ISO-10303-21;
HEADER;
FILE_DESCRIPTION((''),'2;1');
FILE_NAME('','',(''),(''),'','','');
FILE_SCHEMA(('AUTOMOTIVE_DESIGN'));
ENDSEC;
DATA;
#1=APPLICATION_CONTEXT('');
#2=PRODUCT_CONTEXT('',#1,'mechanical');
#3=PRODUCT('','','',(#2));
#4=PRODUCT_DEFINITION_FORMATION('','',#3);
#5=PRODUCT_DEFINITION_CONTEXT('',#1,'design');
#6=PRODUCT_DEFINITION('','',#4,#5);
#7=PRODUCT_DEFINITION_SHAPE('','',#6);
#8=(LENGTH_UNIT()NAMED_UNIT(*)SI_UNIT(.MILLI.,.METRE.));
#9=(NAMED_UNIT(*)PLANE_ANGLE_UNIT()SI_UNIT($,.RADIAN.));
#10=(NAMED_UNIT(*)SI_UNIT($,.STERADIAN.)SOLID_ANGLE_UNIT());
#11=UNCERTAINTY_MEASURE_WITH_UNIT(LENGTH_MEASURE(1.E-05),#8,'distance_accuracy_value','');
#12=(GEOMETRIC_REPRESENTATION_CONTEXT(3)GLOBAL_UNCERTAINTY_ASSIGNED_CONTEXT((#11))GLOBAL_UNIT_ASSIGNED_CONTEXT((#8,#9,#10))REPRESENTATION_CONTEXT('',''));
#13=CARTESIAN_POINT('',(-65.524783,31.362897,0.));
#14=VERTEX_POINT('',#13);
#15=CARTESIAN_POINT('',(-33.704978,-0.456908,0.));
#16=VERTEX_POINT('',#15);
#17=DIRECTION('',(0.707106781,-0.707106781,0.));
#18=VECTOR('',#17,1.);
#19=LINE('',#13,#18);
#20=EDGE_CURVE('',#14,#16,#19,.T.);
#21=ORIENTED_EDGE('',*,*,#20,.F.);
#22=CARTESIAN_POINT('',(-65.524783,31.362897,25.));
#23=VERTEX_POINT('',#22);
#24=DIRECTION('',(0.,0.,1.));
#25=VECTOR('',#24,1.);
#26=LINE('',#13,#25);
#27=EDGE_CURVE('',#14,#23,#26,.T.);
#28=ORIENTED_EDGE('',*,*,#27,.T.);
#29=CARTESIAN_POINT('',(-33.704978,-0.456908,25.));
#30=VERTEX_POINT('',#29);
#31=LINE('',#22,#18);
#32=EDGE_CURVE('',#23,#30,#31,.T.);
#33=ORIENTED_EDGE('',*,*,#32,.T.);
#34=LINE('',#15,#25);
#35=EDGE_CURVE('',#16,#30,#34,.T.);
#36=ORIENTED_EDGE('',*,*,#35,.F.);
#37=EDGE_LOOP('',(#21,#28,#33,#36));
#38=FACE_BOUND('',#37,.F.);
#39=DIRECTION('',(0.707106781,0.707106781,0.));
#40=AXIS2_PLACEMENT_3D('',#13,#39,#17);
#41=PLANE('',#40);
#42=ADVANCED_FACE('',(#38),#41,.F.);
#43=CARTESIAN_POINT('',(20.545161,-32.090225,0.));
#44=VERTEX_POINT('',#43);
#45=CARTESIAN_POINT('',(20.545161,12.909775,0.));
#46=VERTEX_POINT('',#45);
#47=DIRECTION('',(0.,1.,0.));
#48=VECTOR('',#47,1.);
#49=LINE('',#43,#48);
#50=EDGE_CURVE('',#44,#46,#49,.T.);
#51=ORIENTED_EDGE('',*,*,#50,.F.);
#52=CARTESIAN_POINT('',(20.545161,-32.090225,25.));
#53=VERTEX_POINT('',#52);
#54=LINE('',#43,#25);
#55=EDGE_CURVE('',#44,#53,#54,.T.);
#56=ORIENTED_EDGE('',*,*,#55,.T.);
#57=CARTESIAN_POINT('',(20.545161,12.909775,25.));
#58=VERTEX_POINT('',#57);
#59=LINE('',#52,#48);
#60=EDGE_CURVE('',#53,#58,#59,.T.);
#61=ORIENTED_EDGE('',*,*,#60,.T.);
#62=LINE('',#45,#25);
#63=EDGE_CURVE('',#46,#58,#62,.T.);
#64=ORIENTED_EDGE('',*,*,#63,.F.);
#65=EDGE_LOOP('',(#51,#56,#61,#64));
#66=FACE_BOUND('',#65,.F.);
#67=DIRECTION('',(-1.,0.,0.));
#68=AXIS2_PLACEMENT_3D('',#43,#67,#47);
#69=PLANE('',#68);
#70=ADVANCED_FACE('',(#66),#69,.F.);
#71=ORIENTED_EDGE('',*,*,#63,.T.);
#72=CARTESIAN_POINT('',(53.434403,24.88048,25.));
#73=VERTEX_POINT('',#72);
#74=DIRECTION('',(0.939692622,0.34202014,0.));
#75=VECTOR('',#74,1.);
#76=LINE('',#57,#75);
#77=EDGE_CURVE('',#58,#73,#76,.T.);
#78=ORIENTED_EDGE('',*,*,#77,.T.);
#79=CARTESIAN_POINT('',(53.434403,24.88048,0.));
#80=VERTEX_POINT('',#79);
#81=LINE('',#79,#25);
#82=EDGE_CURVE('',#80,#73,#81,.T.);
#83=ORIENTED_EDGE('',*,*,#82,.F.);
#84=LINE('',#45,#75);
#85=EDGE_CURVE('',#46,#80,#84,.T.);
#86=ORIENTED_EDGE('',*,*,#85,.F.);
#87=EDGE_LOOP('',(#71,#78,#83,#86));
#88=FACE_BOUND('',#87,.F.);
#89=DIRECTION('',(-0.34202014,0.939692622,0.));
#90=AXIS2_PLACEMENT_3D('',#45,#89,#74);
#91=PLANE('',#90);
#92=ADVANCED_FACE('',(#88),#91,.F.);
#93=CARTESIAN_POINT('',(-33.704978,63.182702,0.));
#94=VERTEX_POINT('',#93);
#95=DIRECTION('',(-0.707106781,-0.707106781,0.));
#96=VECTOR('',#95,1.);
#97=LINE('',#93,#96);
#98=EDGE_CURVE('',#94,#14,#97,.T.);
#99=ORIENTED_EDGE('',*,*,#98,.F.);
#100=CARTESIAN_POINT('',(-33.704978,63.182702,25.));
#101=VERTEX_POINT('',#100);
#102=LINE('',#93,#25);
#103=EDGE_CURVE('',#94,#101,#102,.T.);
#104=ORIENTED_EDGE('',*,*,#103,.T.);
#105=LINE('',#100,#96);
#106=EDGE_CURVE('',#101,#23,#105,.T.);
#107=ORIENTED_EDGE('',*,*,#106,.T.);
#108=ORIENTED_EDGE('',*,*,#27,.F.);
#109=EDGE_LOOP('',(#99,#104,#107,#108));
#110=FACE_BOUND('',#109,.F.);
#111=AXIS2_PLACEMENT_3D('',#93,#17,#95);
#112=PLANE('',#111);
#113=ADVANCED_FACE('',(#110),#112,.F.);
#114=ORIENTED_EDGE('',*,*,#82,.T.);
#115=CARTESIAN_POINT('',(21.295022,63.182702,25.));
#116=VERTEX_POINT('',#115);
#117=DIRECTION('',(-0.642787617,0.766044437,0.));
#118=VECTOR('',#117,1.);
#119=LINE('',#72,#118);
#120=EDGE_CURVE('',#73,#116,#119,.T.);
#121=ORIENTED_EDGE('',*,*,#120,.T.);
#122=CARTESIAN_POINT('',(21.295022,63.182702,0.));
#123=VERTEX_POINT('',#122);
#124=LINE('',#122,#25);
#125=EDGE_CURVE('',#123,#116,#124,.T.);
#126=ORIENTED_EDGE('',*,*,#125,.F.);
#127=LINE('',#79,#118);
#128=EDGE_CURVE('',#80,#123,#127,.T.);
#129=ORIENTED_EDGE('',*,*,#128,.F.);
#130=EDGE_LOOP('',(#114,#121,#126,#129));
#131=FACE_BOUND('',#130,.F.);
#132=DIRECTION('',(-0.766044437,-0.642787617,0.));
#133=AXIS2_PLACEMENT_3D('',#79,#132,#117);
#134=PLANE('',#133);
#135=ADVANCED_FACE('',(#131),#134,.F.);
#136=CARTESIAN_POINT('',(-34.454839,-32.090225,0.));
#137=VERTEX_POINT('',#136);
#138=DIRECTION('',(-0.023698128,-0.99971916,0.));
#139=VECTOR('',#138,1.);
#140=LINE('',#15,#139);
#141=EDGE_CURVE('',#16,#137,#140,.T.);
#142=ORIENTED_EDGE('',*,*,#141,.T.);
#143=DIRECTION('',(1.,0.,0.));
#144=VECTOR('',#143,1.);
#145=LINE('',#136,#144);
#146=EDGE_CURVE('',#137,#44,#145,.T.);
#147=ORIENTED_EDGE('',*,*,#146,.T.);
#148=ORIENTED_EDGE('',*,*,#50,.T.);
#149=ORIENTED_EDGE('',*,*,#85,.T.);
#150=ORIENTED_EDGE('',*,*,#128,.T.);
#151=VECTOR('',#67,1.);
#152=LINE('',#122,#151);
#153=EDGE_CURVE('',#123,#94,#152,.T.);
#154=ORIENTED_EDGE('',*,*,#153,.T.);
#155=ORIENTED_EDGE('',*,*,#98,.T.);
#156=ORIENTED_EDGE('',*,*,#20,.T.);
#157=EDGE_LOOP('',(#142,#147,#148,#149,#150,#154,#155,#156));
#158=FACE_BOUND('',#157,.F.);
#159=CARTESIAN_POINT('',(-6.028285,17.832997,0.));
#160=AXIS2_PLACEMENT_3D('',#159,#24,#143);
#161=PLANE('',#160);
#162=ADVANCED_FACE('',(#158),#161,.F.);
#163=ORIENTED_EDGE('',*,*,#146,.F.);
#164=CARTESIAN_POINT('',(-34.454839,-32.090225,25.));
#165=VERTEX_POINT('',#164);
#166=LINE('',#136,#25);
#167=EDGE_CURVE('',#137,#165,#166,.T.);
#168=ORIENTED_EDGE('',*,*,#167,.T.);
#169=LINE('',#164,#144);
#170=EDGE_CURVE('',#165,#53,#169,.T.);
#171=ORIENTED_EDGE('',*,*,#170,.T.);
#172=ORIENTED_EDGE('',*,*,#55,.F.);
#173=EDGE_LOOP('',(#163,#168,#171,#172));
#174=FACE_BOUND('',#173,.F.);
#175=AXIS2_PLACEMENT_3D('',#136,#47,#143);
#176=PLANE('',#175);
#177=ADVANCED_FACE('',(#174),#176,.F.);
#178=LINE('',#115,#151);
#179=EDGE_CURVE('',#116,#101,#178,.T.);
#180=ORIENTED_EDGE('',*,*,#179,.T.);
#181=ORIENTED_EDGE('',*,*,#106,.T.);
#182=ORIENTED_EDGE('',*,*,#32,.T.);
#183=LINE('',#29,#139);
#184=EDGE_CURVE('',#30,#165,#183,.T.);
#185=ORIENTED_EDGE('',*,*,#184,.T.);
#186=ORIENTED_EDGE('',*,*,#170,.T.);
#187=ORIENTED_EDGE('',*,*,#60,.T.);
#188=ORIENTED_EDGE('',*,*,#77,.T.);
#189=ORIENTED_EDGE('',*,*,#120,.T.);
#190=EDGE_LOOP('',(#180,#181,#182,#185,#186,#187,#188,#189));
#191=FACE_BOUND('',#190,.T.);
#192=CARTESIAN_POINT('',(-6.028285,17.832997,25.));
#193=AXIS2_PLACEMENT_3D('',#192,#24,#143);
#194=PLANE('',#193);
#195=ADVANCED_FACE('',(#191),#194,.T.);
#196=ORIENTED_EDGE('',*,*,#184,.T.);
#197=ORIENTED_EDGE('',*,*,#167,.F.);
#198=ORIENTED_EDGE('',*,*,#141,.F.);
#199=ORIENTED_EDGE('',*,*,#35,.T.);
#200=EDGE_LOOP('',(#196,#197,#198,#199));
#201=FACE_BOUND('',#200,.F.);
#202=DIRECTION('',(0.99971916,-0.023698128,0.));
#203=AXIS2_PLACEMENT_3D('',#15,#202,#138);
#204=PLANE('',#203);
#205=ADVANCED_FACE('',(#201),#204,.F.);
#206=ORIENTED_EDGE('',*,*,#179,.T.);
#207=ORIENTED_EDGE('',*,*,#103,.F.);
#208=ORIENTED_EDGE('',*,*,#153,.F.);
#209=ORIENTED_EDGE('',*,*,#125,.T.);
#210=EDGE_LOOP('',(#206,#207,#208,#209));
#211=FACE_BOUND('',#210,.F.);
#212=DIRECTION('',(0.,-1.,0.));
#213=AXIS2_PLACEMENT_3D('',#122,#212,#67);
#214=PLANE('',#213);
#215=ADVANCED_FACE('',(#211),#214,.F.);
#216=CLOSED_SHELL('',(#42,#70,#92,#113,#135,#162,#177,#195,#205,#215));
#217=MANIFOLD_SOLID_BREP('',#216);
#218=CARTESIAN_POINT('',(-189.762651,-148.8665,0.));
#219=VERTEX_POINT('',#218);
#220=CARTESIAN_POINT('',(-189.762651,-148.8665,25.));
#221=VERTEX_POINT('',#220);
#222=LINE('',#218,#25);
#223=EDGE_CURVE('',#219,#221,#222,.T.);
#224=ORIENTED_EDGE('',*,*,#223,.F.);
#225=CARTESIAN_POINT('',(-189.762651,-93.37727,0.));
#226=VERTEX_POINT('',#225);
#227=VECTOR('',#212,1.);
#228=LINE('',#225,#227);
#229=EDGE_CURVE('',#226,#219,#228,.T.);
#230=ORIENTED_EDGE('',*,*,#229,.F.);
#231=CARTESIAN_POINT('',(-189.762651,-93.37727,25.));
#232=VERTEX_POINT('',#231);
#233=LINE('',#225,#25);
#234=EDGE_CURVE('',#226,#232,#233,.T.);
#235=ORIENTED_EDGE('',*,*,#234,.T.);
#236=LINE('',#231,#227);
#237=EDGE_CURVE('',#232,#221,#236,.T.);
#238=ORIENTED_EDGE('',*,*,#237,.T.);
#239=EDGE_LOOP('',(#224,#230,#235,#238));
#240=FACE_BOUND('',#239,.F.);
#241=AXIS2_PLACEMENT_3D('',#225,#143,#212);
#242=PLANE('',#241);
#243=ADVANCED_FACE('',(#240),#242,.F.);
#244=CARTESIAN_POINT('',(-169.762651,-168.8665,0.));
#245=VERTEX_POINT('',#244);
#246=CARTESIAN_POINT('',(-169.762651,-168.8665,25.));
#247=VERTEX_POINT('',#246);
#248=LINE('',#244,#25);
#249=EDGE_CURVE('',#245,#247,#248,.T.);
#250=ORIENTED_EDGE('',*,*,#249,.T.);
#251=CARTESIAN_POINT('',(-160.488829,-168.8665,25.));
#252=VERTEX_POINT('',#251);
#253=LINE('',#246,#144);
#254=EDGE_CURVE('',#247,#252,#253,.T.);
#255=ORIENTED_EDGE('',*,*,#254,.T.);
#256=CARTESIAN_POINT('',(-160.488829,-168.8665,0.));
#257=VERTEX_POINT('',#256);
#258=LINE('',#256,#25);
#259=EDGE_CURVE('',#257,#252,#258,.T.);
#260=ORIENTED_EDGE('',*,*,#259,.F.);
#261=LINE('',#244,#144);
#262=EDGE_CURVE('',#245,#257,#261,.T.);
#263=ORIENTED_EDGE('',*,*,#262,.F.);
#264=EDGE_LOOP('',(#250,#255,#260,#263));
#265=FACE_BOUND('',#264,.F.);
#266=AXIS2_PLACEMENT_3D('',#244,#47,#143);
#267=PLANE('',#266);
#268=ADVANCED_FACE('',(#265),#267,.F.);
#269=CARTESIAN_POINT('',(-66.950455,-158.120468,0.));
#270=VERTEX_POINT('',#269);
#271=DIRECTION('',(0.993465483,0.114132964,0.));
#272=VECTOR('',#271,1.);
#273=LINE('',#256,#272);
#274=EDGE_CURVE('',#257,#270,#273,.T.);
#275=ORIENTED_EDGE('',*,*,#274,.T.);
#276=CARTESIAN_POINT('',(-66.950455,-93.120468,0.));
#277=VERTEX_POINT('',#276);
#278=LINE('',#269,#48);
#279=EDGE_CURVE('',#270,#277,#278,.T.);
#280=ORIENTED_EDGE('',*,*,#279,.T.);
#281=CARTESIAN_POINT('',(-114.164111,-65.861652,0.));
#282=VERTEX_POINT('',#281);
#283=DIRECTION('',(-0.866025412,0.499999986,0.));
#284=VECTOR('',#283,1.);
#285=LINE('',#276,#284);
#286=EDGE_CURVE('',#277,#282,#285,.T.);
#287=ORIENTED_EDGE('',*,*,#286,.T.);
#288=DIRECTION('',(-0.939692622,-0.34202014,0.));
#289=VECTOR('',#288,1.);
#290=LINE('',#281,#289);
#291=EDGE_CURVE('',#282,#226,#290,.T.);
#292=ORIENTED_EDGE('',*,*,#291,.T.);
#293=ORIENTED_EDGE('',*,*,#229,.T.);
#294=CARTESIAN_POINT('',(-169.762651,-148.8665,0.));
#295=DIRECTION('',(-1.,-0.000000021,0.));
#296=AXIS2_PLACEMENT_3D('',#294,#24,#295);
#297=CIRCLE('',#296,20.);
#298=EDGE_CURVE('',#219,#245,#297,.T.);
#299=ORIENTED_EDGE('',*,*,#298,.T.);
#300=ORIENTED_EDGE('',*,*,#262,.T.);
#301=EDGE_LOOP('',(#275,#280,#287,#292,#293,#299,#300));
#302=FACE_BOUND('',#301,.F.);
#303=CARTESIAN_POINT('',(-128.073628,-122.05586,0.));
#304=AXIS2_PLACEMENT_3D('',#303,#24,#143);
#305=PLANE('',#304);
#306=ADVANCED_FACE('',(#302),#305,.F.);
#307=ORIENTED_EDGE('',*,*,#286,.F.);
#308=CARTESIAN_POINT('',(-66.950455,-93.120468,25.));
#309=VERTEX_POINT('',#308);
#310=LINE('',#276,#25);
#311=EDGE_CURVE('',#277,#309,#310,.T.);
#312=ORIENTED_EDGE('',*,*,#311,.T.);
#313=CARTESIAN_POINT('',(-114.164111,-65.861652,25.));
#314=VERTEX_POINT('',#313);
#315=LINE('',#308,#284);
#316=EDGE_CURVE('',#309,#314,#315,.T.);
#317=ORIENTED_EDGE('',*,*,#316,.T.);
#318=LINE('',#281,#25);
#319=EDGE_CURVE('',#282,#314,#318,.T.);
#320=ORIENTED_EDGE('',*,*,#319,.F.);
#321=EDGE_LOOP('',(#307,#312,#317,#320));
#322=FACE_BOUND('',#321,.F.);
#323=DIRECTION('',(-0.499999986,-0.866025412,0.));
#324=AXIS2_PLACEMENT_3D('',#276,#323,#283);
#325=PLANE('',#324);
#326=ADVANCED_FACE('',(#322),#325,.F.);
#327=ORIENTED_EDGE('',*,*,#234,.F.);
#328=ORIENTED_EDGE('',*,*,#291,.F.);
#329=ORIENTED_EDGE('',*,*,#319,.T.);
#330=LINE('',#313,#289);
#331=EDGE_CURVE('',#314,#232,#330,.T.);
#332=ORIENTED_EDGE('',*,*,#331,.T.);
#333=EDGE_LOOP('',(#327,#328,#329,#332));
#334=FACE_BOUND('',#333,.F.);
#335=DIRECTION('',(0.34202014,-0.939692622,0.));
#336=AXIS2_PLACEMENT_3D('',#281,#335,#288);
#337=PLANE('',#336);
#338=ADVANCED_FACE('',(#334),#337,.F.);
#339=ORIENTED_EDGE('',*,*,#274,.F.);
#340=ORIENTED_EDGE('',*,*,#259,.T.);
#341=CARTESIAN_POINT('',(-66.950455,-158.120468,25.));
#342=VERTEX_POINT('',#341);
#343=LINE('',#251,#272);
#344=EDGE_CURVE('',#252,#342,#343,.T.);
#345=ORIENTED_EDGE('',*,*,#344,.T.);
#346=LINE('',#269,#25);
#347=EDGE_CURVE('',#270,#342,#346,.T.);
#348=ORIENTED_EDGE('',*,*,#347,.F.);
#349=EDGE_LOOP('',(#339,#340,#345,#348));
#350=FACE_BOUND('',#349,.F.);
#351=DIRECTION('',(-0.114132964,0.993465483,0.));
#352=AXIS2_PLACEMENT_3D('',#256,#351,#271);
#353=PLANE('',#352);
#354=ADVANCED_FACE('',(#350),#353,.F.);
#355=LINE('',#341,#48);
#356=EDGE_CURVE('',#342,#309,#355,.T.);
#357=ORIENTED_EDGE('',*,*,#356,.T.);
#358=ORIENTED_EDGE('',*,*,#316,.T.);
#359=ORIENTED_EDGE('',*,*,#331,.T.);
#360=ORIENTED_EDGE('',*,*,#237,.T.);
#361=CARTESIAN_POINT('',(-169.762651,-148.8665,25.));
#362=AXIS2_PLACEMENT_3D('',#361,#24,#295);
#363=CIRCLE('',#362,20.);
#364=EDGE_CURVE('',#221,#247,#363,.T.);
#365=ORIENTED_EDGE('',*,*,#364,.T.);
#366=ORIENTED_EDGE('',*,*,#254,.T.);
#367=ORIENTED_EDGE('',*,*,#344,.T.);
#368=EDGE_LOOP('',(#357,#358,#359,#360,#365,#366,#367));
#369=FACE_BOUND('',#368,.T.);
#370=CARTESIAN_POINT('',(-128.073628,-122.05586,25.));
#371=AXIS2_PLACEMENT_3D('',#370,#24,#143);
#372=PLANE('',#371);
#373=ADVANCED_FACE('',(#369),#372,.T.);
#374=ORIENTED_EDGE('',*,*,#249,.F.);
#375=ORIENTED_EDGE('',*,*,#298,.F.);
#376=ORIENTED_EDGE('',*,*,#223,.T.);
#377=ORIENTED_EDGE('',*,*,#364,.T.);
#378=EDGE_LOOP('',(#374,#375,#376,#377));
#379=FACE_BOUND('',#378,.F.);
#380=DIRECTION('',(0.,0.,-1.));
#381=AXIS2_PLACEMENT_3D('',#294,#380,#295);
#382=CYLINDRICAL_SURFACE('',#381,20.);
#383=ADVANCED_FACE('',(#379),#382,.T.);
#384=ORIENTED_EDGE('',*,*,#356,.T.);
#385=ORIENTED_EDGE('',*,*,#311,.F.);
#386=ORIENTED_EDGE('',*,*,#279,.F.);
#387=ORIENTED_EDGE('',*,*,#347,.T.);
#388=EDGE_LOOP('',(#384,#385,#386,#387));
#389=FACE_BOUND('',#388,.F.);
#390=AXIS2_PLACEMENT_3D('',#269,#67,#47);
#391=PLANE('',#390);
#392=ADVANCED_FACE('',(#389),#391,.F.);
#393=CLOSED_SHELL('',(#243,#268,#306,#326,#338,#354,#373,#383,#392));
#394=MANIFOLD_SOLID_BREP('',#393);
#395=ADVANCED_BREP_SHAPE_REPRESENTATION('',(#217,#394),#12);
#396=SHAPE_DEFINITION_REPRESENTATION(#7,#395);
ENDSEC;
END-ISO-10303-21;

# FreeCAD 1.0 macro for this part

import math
import FreeCAD as App
import Part
import Sketcher

V = App.Vector
Q = App.Units.Quantity


def add_polygon(sketch, points):
    """Adds a closed chain of lines whose ends are joined by coincident constraints."""
    first, n = sketch.GeometryCount, len(points)
    for a, b in zip(points, points[1:] + points[:1]):
        sketch.addGeometry(Part.LineSegment(App.Vector(*a, 0), App.Vector(*b, 0)), False)
    for i in range(n):
        sketch.addConstraint(Sketcher.Constraint("Coincident", first + i, 2, first + (i + 1) % n, 1))

doc = App.newDocument("Part")
body = doc.addObject("PartDesign::Body", "Body")

# Sketch on XY plane
sketch1 = doc.addObject("Sketcher::SketchObject", "Sketch")
body.addObject(sketch1)
sketch1.AttachmentSupport = (doc.XY_Plane, [""])
sketch1.MapMode = "FlatFace"
add_polygon(sketch1, [(-33.704978, -0.456908), (-34.454839, -32.090225), (20.545161, -32.090225), (20.545161, 12.909775), (53.434403, 24.88048), (21.295022, 63.182702), (-33.704978, 63.182702), (-65.524783, 31.362897)])  # lines 0-7
sketch1.addConstraint(Sketcher.Constraint("Horizontal", 1))
sketch1.addConstraint(Sketcher.Constraint("Vertical", 2))
sketch1.addConstraint(Sketcher.Constraint("Horizontal", 5))
sketch1.addConstraint(Sketcher.Constraint("Perpendicular", 6, 7))
sketch1.addConstraint(Sketcher.Constraint("Vertical", 5, 2, 7, 2))
sketch1.addConstraint(Sketcher.Constraint("Equal", 1, 5))
sketch1.addConstraint(Sketcher.Constraint("Equal", 6, 7))
sketch1.addConstraint(Sketcher.Constraint("DistanceX", 1, 1, 1, 2, Q("55 mm")))
sketch1.addConstraint(Sketcher.Constraint("DistanceY", 2, 1, 2, 2, Q("45 mm")))
sketch1.addConstraint(Sketcher.Constraint("Angle", 3, Q("20 deg")))
sketch1.addConstraint(Sketcher.Constraint("Angle", 4, Q("130.000001 deg")))
sketch1.addConstraint(Sketcher.Constraint("Distance", 3, Q("35 mm")))
sketch1.addConstraint(Sketcher.Constraint("Distance", 4, Q("50 mm")))
sketch1.addConstraint(Sketcher.Constraint("Distance", 6, Q("45 mm")))
sketch1.addConstraint(Sketcher.Constraint("DistanceX", 0, 2, -1, 1, Q("34.454839 mm")))
sketch1.addConstraint(Sketcher.Constraint("DistanceY", -1, 1, 3, 2, Q("24.88048 mm")))
pad1 = doc.addObject("PartDesign::Pad", "Pad")
body.addObject(pad1)
pad1.Profile = sketch1
pad1.Length = 25
body2 = doc.addObject("PartDesign::Body", "Body001")

# Sketch on XY plane
sketch2 = doc.addObject("Sketcher::SketchObject", "Sketch001")
body2.addObject(sketch2)
sketch2.AttachmentSupport = (doc.getObject("XY_Plane001"), [""])
sketch2.MapMode = "FlatFace"
sketch2.addGeometry(Part.LineSegment(V(-66.950455, -158.120468, 0), V(-66.950455, -93.120468, 0)), False)
sketch2.addGeometry(Part.LineSegment(V(-66.950455, -93.120468, 0), V(-114.164111, -65.861652, 0)), False)
sketch2.addGeometry(Part.LineSegment(V(-114.164111, -65.861652, 0), V(-189.762651, -93.37727, 0)), False)
sketch2.addGeometry(Part.LineSegment(V(-189.762651, -93.37727, 0), V(-189.762651, -148.8665, 0)), False)
sketch2.addGeometry(Part.ArcOfCircle(Part.Circle(V(-169.762651, -148.8665, 0), V(0, 0, 1), 20), math.radians(-179.999999), math.radians(-90.000001)), False)
sketch2.addGeometry(Part.LineSegment(V(-169.762651, -168.8665, 0), V(-160.488829, -168.8665, 0)), False)
sketch2.addGeometry(Part.LineSegment(V(-160.488829, -168.8665, 0), V(-66.950455, -158.120468, 0)), False)
sketch2.addConstraint(Sketcher.Constraint("Coincident", 0, 2, 1, 1))
sketch2.addConstraint(Sketcher.Constraint("Coincident", 1, 2, 2, 1))
sketch2.addConstraint(Sketcher.Constraint("Coincident", 2, 2, 3, 1))
sketch2.addConstraint(Sketcher.Constraint("Tangent", 3, 2, 4, 1))
sketch2.addConstraint(Sketcher.Constraint("Tangent", 4, 2, 5, 1))
sketch2.addConstraint(Sketcher.Constraint("Coincident", 5, 2, 6, 1))
sketch2.addConstraint(Sketcher.Constraint("Coincident", 6, 2, 0, 1))
sketch2.addConstraint(Sketcher.Constraint("Vertical", 0))
sketch2.addConstraint(Sketcher.Constraint("Vertical", 3))
sketch2.addConstraint(Sketcher.Constraint("Horizontal", 5))
sketch2.addConstraint(Sketcher.Constraint("Radius", 4, Q("20 mm")))
sketch2.addConstraint(Sketcher.Constraint("DistanceY", 0, 1, 0, 2, Q("65 mm")))
sketch2.addConstraint(Sketcher.Constraint("Angle", 1, Q("150.000001 deg")))
sketch2.addConstraint(Sketcher.Constraint("Angle", 2, Q("-160 deg")))
sketch2.addConstraint(Sketcher.Constraint("DistanceX", 5, 1, 5, 2, Q("9.273822 mm")))
sketch2.addConstraint(Sketcher.Constraint("DistanceY", 3, 2, 3, 1, Q("55.48923 mm")))
sketch2.addConstraint(Sketcher.Constraint("DistanceY", 4, 3, -1, 1, Q("148.8665 mm")))
sketch2.addConstraint(Sketcher.Constraint("DistanceY", 2, 2, 0, 2, Q("0.256802 mm")))
sketch2.addConstraint(Sketcher.Constraint("DistanceX", 4, 3, -1, 1, Q("169.762651 mm")))
sketch2.addConstraint(Sketcher.Constraint("DistanceX", 1, 2, -1, 1, Q("114.164111 mm")))
pad2 = doc.addObject("PartDesign::Pad", "Pad001")
body2.addObject(pad2)
pad2.Profile = sketch2
pad2.Length = 25

doc.recompute()
